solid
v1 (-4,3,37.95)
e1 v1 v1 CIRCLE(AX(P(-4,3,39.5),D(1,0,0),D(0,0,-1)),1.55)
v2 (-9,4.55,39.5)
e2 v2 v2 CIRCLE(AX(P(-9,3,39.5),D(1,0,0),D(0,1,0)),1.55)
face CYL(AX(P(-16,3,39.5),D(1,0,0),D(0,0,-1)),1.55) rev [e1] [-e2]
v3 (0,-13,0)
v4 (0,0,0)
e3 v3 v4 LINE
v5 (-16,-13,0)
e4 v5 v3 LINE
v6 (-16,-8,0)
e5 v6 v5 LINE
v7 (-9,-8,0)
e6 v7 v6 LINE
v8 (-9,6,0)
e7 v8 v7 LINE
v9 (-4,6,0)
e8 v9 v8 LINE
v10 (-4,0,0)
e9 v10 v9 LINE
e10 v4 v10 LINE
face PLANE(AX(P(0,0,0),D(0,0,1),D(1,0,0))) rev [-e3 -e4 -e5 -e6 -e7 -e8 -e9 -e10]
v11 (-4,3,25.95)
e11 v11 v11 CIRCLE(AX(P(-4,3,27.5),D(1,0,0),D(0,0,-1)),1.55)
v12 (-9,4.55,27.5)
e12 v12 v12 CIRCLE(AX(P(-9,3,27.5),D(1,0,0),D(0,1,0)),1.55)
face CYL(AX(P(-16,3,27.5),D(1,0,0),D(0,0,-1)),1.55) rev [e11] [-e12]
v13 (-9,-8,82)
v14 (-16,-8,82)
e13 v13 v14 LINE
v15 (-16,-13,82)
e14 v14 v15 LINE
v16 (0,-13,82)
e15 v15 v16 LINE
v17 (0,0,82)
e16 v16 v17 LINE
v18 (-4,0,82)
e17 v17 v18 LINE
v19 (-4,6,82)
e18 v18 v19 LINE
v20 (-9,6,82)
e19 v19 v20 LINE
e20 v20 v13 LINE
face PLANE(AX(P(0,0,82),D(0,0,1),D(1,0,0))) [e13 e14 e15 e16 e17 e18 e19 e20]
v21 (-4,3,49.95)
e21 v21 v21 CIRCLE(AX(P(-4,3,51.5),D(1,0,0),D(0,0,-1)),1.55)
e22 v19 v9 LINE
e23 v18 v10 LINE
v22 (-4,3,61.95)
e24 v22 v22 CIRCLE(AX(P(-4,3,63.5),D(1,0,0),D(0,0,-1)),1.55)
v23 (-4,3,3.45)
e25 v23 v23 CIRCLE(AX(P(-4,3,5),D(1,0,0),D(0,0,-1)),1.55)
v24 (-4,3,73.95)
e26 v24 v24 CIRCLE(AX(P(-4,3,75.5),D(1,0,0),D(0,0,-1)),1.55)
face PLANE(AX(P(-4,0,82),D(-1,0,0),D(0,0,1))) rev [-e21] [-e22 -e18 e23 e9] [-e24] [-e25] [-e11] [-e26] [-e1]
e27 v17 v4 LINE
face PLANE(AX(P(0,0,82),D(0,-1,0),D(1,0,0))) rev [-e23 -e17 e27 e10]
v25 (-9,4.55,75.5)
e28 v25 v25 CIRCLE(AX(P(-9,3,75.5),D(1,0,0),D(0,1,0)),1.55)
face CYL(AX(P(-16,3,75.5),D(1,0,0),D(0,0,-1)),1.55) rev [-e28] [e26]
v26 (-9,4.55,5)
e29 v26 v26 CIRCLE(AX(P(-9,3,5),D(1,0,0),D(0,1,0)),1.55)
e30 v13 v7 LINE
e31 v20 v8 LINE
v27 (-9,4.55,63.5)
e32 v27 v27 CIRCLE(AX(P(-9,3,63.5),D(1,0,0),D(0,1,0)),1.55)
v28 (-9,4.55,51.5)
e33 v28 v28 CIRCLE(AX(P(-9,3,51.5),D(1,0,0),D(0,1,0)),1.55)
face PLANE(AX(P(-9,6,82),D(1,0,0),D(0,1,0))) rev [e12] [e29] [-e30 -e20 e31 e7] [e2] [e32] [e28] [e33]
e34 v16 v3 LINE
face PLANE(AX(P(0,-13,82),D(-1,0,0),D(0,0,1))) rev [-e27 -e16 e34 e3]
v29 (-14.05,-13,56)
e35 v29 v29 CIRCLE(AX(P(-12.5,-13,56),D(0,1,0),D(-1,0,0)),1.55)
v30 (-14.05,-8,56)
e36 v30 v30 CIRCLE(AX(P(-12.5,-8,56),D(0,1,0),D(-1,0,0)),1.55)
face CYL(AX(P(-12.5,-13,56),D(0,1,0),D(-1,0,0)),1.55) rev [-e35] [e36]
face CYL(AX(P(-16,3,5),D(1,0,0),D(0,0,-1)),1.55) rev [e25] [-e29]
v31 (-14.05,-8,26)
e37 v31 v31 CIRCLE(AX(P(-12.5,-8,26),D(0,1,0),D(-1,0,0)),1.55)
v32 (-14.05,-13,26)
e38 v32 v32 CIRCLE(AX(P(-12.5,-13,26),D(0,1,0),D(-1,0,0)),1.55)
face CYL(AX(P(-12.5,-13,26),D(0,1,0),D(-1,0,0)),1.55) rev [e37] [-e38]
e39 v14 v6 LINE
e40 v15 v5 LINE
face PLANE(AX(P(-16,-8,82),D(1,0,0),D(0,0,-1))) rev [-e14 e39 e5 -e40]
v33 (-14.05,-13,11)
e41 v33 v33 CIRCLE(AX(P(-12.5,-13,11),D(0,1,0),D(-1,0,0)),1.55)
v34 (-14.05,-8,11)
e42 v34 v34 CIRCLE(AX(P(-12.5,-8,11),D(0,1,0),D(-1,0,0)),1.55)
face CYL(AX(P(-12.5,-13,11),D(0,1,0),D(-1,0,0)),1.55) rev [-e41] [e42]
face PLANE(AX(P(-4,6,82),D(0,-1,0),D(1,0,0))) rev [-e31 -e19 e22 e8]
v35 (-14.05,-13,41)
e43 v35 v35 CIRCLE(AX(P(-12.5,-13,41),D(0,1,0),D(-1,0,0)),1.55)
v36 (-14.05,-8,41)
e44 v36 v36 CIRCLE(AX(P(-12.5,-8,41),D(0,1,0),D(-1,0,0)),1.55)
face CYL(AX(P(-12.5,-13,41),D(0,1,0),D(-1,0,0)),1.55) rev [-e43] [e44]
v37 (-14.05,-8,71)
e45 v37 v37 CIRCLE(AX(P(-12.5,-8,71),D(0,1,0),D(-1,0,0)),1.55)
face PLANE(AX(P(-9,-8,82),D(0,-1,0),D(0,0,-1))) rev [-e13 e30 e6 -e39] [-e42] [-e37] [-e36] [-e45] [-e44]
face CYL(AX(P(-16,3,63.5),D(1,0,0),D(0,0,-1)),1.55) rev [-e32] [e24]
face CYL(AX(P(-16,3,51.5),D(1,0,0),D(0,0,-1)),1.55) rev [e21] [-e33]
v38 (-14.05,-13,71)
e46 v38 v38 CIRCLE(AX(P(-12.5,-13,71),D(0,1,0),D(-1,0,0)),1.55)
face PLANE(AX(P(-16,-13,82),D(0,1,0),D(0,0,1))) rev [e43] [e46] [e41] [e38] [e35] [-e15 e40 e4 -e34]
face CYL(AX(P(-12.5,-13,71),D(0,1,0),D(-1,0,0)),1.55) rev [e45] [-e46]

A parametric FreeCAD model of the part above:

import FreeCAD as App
import Part
import Sketcher
from FreeCAD import Vector

doc = App.newDocument("Part")
params = doc.addObject("Spreadsheet::Sheet", "Params")
for row, (alias, value) in enumerate([
    ("sketch1_width", "7 mm"),
    ("sketch1_width2", "16 mm"),
    ("sketch1_width3", "4 mm"),
    ("sketch1_height", "14 mm"),
    ("sketch1_height2", "13 mm"),
    ("pad1_length", "82 mm"),
    ("sketch2_diameter", "3.1 mm"),
    ("sketch3_diameter", "3.1 mm"),
    ("linearpattern_pitch", "15 mm"),
], start=1):
    params.set(f"A{row}", alias)
    params.set(f"B{row}", "=" + value)
    params.setAlias(f"B{row}", alias)

body = doc.addObject("PartDesign::Body", "Body")

# Sketch on XY plane
sketch1 = body.newObject("Sketcher::SketchObject", "Sketch")
sketch1.AttachmentSupport = (doc.getObject("XY_Plane"), [""])
sketch1.MapMode = "FlatFace"
sketch1.addGeometry(Part.LineSegment(Vector(-9, 6, 0), Vector(-9, -8, 0)), False)
sketch1.addGeometry(Part.LineSegment(Vector(-9, -8, 0), Vector(-16, -8, 0)), False)
sketch1.addGeometry(Part.LineSegment(Vector(-16, -8, 0), Vector(-16, -13, 0)), False)
sketch1.addGeometry(Part.LineSegment(Vector(-16, -13, 0), Vector(0, -13, 0)), False)
sketch1.addGeometry(Part.LineSegment(Vector(0, -13, 0), Vector(0, 0, 0)), False)
sketch1.addGeometry(Part.LineSegment(Vector(0, 0, 0), Vector(-4, 0, 0)), False)
sketch1.addGeometry(Part.LineSegment(Vector(-4, 0, 0), Vector(-4, 6, 0)), False)
sketch1.addGeometry(Part.LineSegment(Vector(-4, 6, 0), Vector(-9, 6, 0)), False)
sketch1.addConstraint(Sketcher.Constraint("Coincident", 0, 2, 1, 1))
sketch1.addConstraint(Sketcher.Constraint("Coincident", 1, 2, 2, 1))
sketch1.addConstraint(Sketcher.Constraint("Coincident", 2, 2, 3, 1))
sketch1.addConstraint(Sketcher.Constraint("Coincident", 3, 2, 4, 1))
sketch1.addConstraint(Sketcher.Constraint("Coincident", 4, 2, 5, 1))
sketch1.addConstraint(Sketcher.Constraint("Coincident", 5, 2, 6, 1))
sketch1.addConstraint(Sketcher.Constraint("Coincident", 6, 2, 7, 1))
sketch1.addConstraint(Sketcher.Constraint("Coincident", 7, 2, 0, 1))
sketch1.addConstraint(Sketcher.Constraint("Vertical", 0))
sketch1.addConstraint(Sketcher.Constraint("Horizontal", 1))
sketch1.addConstraint(Sketcher.Constraint("Vertical", 2))
sketch1.addConstraint(Sketcher.Constraint("Horizontal", 3))
sketch1.addConstraint(Sketcher.Constraint("Vertical", 4))
sketch1.addConstraint(Sketcher.Constraint("Horizontal", 5))
sketch1.addConstraint(Sketcher.Constraint("Vertical", 6))
sketch1.addConstraint(Sketcher.Constraint("Horizontal", 7))
sketch1.addConstraint(Sketcher.Constraint("Coincident", 4, 2, -1, 1))
sketch1.addConstraint(Sketcher.Constraint("Equal", 7, 2))
sketch1.addConstraint(Sketcher.Constraint("DistanceX", 1, 2, 1, 1, 7.0))
sketch1.addConstraint(Sketcher.Constraint("DistanceX", 3, 1, 3, 2, 16.0))
sketch1.addConstraint(Sketcher.Constraint("DistanceX", 5, 2, 5, 1, 4.0))
sketch1.addConstraint(Sketcher.Constraint("DistanceY", 0, 2, 0, 1, 14.0))
sketch1.addConstraint(Sketcher.Constraint("DistanceY", 4, 1, 4, 2, 13.0))
sketch1.setExpression("Constraints[18]", "Params.sketch1_width")
sketch1.setExpression("Constraints[19]", "Params.sketch1_width2")
sketch1.setExpression("Constraints[20]", "Params.sketch1_width3")
sketch1.setExpression("Constraints[21]", "Params.sketch1_height")
sketch1.setExpression("Constraints[22]", "Params.sketch1_height2")
pad1 = body.newObject("PartDesign::Pad", "Pad")
pad1.Profile = sketch1
pad1.setExpression("Length", "Params.pad1_length")

# Sketch on YZ plane
sketch2 = body.newObject("Sketcher::SketchObject", "Sketch001")
sketch2.AttachmentSupport = (doc.getObject("YZ_Plane"), [""])
sketch2.MapMode = "FlatFace"
sketch2.AttachmentOffset = App.Placement(Vector(0, 0, -4), App.Rotation())
sketch2.addGeometry(Part.Circle(Vector(3, 75.5, 0), Vector(0, 0, 1), 1.6), False)
sketch2.addGeometry(Part.Circle(Vector(3, 63.5, 0), Vector(0, 0, 1), 1.6), False)
sketch2.addGeometry(Part.Circle(Vector(3, 51.5, 0), Vector(0, 0, 1), 1.6), False)
sketch2.addGeometry(Part.Circle(Vector(3, 39.5, 0), Vector(0, 0, 1), 1.6), False)
sketch2.addGeometry(Part.Circle(Vector(3, 27.5, 0), Vector(0, 0, 1), 1.6), False)
sketch2.addGeometry(Part.Circle(Vector(3, 5, 0), Vector(0, 0, 1), 1.6), False)
sketch2.addConstraint(Sketcher.Constraint("Equal", 0, 1))
sketch2.addConstraint(Sketcher.Constraint("Equal", 1, 2))
sketch2.addConstraint(Sketcher.Constraint("Equal", 2, 3))
sketch2.addConstraint(Sketcher.Constraint("Equal", 3, 4))
sketch2.addConstraint(Sketcher.Constraint("Equal", 4, 5))
sketch2.addConstraint(Sketcher.Constraint("Vertical", 0, 3, 1, 3))
sketch2.addConstraint(Sketcher.Constraint("Vertical", 1, 3, 2, 3))
sketch2.addConstraint(Sketcher.Constraint("Vertical", 2, 3, 3, 3))
sketch2.addConstraint(Sketcher.Constraint("Vertical", 3, 3, 4, 3))
sketch2.addConstraint(Sketcher.Constraint("Vertical", 4, 3, 5, 3))
sketch2.addConstraint(Sketcher.Constraint("Diameter", 0, 3.1))
sketch2.addConstraint(Sketcher.Constraint("DistanceX", -1, 1, 0, 3, 3.0))
sketch2.addConstraint(Sketcher.Constraint("DistanceY", -1, 1, 5, 3, 5.0))
sketch2.addConstraint(Sketcher.Constraint("DistanceY", 1, 3, 0, 3, 12.0))
sketch2.addConstraint(Sketcher.Constraint("DistanceY", 2, 3, 1, 3, 12.0))
sketch2.addConstraint(Sketcher.Constraint("DistanceY", 3, 3, 2, 3, 12.0))
sketch2.addConstraint(Sketcher.Constraint("DistanceY", 4, 3, 3, 3, 12.0))
sketch2.addConstraint(Sketcher.Constraint("DistanceY", -1, 1, 0, 3, 75.5))
sketch2.setExpression("Constraints[10]", "Params.sketch2_diameter")
pocket1 = body.newObject("PartDesign::Pocket", "Pocket")
pocket1.Profile = sketch2
pocket1.Type = "ThroughAll"

# Sketch on XZ plane
sketch3 = body.newObject("Sketcher::SketchObject", "Sketch002")
sketch3.AttachmentSupport = (doc.getObject("XZ_Plane"), [""])
sketch3.MapMode = "FlatFace"
sketch3.AttachmentOffset = App.Placement(Vector(0, 0, 8), App.Rotation())
sketch3.addGeometry(Part.Circle(Vector(-12.5, 11, 0), Vector(0, 0, 1), 1.6), False)
sketch3.addConstraint(Sketcher.Constraint("Diameter", 0, 3.1))
sketch3.addConstraint(Sketcher.Constraint("DistanceY", -1, 1, 0, 3, 11.0))
sketch3.addConstraint(Sketcher.Constraint("DistanceX", 0, 3, -1, 1, 12.5))
sketch3.setExpression("Constraints[0]", "Params.sketch3_diameter")
pocket2 = body.newObject("PartDesign::Pocket", "Pocket001")
pocket2.Profile = sketch3
pocket2.Type = "ThroughAll"
pocket2.Reversed = True
doc.recompute()

linearpattern = body.newObject("PartDesign::LinearPattern", "LinearPattern")
linearpattern.Originals = [pocket2]
linearpattern.Direction = (doc.getObject("Z_Axis"), [""])
linearpattern.Mode = "offset"
linearpattern.setExpression("Offset", "Params.linearpattern_pitch")
linearpattern.Occurrences = 5
body.Tip = linearpattern

doc.recompute()
